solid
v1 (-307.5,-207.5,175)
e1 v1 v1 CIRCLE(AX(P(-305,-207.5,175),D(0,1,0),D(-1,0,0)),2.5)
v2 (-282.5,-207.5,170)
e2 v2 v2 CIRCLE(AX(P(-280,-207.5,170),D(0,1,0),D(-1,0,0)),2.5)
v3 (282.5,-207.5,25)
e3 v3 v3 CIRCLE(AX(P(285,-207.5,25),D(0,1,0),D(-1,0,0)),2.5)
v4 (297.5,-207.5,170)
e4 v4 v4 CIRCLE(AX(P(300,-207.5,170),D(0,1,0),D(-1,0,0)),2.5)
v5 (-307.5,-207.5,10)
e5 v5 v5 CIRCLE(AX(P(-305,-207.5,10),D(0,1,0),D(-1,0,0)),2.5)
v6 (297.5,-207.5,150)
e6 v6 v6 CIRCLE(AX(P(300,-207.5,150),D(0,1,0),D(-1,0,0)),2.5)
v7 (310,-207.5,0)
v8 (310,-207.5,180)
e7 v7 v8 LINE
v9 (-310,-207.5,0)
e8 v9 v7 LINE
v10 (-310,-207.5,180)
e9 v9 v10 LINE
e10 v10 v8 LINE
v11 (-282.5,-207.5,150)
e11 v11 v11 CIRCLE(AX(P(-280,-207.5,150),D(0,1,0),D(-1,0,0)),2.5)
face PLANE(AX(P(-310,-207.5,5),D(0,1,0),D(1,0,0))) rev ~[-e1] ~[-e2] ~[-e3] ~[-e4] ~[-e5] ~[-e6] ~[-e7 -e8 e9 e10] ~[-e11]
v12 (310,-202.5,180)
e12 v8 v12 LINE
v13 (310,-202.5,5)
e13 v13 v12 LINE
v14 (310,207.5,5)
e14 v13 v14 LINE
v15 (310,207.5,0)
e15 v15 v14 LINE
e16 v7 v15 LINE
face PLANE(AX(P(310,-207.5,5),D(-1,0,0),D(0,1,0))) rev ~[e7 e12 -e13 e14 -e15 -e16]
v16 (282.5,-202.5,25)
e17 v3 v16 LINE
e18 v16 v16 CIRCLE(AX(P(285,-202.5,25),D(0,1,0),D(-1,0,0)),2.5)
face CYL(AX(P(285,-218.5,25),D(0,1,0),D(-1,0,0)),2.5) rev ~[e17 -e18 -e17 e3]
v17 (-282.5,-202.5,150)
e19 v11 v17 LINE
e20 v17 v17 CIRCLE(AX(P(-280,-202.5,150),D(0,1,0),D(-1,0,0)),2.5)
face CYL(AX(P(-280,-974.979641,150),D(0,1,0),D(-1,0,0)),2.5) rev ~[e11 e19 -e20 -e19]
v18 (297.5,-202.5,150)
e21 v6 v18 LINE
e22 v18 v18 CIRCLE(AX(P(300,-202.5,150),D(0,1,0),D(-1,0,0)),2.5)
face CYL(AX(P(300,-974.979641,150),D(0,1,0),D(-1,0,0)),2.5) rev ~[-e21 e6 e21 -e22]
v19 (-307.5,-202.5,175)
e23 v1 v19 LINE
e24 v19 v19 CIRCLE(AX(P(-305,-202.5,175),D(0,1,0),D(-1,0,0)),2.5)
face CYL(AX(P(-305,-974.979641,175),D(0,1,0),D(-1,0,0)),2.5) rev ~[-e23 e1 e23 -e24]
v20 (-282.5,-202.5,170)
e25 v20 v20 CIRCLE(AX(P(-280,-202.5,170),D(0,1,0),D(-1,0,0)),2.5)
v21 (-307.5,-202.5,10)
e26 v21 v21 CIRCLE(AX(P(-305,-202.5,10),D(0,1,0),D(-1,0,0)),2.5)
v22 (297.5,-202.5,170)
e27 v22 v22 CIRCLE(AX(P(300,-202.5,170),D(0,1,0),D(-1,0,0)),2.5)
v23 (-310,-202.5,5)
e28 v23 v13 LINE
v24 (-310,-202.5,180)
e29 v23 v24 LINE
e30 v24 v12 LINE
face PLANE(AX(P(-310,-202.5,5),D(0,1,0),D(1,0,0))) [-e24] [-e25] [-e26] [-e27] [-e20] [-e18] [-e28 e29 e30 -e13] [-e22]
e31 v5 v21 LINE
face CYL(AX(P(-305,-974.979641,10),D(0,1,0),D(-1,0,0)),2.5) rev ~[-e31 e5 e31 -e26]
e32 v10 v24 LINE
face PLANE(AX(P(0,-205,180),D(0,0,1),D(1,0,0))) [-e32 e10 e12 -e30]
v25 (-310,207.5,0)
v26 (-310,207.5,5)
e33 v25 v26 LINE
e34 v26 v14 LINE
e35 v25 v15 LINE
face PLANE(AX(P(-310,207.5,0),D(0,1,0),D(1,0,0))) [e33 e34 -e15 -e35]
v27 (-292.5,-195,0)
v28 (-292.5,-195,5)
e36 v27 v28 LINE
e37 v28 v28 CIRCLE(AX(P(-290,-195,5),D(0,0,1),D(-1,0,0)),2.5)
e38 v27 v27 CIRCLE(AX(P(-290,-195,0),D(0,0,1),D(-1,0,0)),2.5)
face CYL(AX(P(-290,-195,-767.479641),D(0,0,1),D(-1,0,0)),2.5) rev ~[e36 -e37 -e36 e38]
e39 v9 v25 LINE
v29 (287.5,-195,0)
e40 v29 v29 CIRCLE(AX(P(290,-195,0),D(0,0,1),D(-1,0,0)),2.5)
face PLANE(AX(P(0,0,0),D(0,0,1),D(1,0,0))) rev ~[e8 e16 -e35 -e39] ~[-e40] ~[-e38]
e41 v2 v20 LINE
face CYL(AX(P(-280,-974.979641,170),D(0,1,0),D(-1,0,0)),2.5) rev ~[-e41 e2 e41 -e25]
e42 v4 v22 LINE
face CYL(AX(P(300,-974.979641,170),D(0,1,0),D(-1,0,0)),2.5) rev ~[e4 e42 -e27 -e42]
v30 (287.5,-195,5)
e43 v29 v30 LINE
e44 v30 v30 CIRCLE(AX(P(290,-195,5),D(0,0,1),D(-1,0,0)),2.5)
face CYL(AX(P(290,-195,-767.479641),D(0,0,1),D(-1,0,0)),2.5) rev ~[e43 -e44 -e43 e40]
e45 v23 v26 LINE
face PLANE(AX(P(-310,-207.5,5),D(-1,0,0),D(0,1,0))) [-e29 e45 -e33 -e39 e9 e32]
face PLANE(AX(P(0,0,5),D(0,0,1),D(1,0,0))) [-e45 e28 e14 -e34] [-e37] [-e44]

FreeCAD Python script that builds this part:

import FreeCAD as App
import Part
import Sketcher
Q = App.Units.Quantity

doc = App.newDocument("Part")
params = doc.addObject("Spreadsheet::Sheet", "Params")
for row, (alias, value) in enumerate([
    ("sketch1_width", "620 mm"),
    ("sketch1_height", "415 mm"),
    ("pad1_length", "5 mm"),
    ("sketch2_width", "620 mm"),
    ("sketch2_height", "5 mm"),
    ("pad2_length", "175 mm"),
    ("sketch3_diameter", "5 mm"),
    ("hole_diameter", "5 mm"),
    ("sketch4_diameter", "5 mm"),
    ("hole2_diameter", "5 mm"),
    ("sketch5_diameter", "5 mm"),
    ("hole3_diameter", "5 mm"),
    ("sketch6_diameter", "5 mm"),
    ("hole4_diameter", "5 mm"),
    ("sketch7_diameter", "5 mm"),
    ("hole5_diameter", "5 mm"),
    ("sketch8_diameter", "5 mm"),
    ("hole6_diameter", "5 mm"),
    ("sketch9_diameter", "5 mm"),
    ("hole7_diameter", "5 mm"),
    ("sketch10_diameter", "5 mm"),
    ("hole8_diameter", "5 mm"),
    ("sketch11_diameter", "5 mm"),
    ("hole9_diameter", "5 mm"),
    ("hole9_depth", "11 mm"),
], start=1):
    params.set(f"A{row}", alias)
    params.set(f"B{row}", "=" + value)
    params.setAlias(f"B{row}", alias)

body = doc.addObject("PartDesign::Body", "Body")

sketch1 = body.newObject("Sketcher::SketchObject", "Sketch")
sketch1.AttachmentSupport = (doc.getObject("XY_Plane"), [""])
sketch1.MapMode = "FlatFace"
sketch1.addGeometry([
    Part.LineSegment(App.Vector(-310, 208, 0), App.Vector(-310, -208, 0)),
    Part.LineSegment(App.Vector(-310, -208, 0), App.Vector(310, -208, 0)),
    Part.LineSegment(App.Vector(310, -208, 0), App.Vector(310, 208, 0)),
    Part.LineSegment(App.Vector(310, 208, 0), App.Vector(-310, 208, 0)),
], False)
sketch1.addConstraint([
    Sketcher.Constraint("Coincident", 0, 2, 1, 1),
    Sketcher.Constraint("Coincident", 1, 2, 2, 1),
    Sketcher.Constraint("Coincident", 2, 2, 3, 1),
    Sketcher.Constraint("Coincident", 3, 2, 0, 1),
    Sketcher.Constraint("Vertical", 0),
    Sketcher.Constraint("Horizontal", 1),
    Sketcher.Constraint("Vertical", 2),
    Sketcher.Constraint("Horizontal", 3),
    Sketcher.Constraint("Symmetric", 0, 2, 2, 2, -1, 1),
    Sketcher.Constraint("DistanceX", 1, 1, 1, 2, Q("620 mm")),
    Sketcher.Constraint("DistanceY", 0, 2, 0, 1, Q("415 mm")),
])
sketch1.setExpression("Constraints[9]", "Params.sketch1_width")
sketch1.setExpression("Constraints[10]", "Params.sketch1_height")
pad1 = body.newObject("PartDesign::Pad", "Pad")
pad1.Profile = sketch1
pad1.setExpression("Length", "Params.pad1_length")

sketch2 = body.newObject("Sketcher::SketchObject", "Sketch001")
sketch2.AttachmentSupport = (doc.getObject("XY_Plane"), [""])
sketch2.MapMode = "FlatFace"
sketch2.AttachmentOffset = App.Placement(App.Vector(0, 0, 5), App.Rotation())
sketch2.addGeometry([
    Part.LineSegment(App.Vector(-310, -202, 0), App.Vector(-310, -208, 0)),
    Part.LineSegment(App.Vector(-310, -208, 0), App.Vector(310, -208, 0)),
    Part.LineSegment(App.Vector(310, -208, 0), App.Vector(310, -202, 0)),
    Part.LineSegment(App.Vector(310, -202, 0), App.Vector(-310, -202, 0)),
], False)
sketch2.addConstraint([
    Sketcher.Constraint("Coincident", 0, 2, 1, 1),
    Sketcher.Constraint("Coincident", 1, 2, 2, 1),
    Sketcher.Constraint("Coincident", 2, 2, 3, 1),
    Sketcher.Constraint("Coincident", 3, 2, 0, 1),
    Sketcher.Constraint("Vertical", 0),
    Sketcher.Constraint("Horizontal", 1),
    Sketcher.Constraint("Vertical", 2),
    Sketcher.Constraint("Horizontal", 3),
    Sketcher.Constraint("DistanceX", 1, 1, 1, 2, Q("620 mm")),
    Sketcher.Constraint("DistanceY", 0, 2, 0, 1, Q("5 mm")),
    Sketcher.Constraint("DistanceX", 0, 2, -1, 1, Q("310 mm")),
    Sketcher.Constraint("DistanceY", 0, 2, -1, 1, Q("207.5 mm")),
])
sketch2.setExpression("Constraints[8]", "Params.sketch2_width")
sketch2.setExpression("Constraints[9]", "Params.sketch2_height")
pad2 = body.newObject("PartDesign::Pad", "Pad001")
pad2.Profile = sketch2
pad2.setExpression("Length", "Params.pad2_length")

sketch3 = body.newObject("Sketcher::SketchObject", "Sketch002")
sketch3.AttachmentSupport = (doc.getObject("XZ_Plane"), [""])
sketch3.MapMode = "FlatFace"
sketch3.AttachmentOffset = App.Placement(App.Vector(0, 0, 207.5), App.Rotation())
sketch3.addGeometry(Part.Circle(App.Vector(300, 170, 0), App.Vector(0, 0, 1), 2.5), False)
sketch3.addConstraint([
    Sketcher.Constraint("Diameter", 0, Q("5 mm")),
    Sketcher.Constraint("DistanceX", -1, 1, 0, 3, Q("300 mm")),
    Sketcher.Constraint("DistanceY", -1, 1, 0, 3, Q("170 mm")),
])
sketch3.setExpression("Constraints[0]", "Params.sketch3_diameter")
doc.recompute()
hole = body.newObject("PartDesign::Hole", "Hole")
hole.Profile = sketch3
hole.ThreadType = "None"
hole.setExpression("Diameter", "Params.hole_diameter")
hole.DepthType = "ThroughAll"

sketch4 = body.newObject("Sketcher::SketchObject", "Sketch003")
sketch4.AttachmentSupport = (doc.getObject("XZ_Plane"), [""])
sketch4.MapMode = "FlatFace"
sketch4.AttachmentOffset = App.Placement(App.Vector(0, 0, 207.5), App.Rotation())
sketch4.addGeometry(Part.Circle(App.Vector(300, 150, 0), App.Vector(0, 0, 1), 2.5), False)
sketch4.addConstraint([
    Sketcher.Constraint("Diameter", 0, Q("5 mm")),
    Sketcher.Constraint("DistanceX", -1, 1, 0, 3, Q("300 mm")),
    Sketcher.Constraint("DistanceY", -1, 1, 0, 3, Q("150 mm")),
])
sketch4.setExpression("Constraints[0]", "Params.sketch4_diameter")
doc.recompute()
hole2 = body.newObject("PartDesign::Hole", "Hole001")
hole2.Profile = sketch4
hole2.ThreadType = "None"
hole2.setExpression("Diameter", "Params.hole2_diameter")
hole2.DepthType = "ThroughAll"

sketch5 = body.newObject("Sketcher::SketchObject", "Sketch004")
sketch5.AttachmentSupport = (doc.getObject("XZ_Plane"), [""])
sketch5.MapMode = "FlatFace"
sketch5.AttachmentOffset = App.Placement(App.Vector(0, 0, 207.5), App.Rotation())
sketch5.addGeometry(Part.Circle(App.Vector(-280, 170, 0), App.Vector(0, 0, 1), 2.5), False)
sketch5.addConstraint([
    Sketcher.Constraint("Diameter", 0, Q("5 mm")),
    Sketcher.Constraint("DistanceX", 0, 3, -1, 1, Q("280 mm")),
    Sketcher.Constraint("DistanceY", -1, 1, 0, 3, Q("170 mm")),
])
sketch5.setExpression("Constraints[0]", "Params.sketch5_diameter")
doc.recompute()
hole3 = body.newObject("PartDesign::Hole", "Hole002")
hole3.Profile = sketch5
hole3.ThreadType = "None"
hole3.setExpression("Diameter", "Params.hole3_diameter")
hole3.DepthType = "ThroughAll"

sketch6 = body.newObject("Sketcher::SketchObject", "Sketch005")
sketch6.AttachmentSupport = (doc.getObject("XZ_Plane"), [""])
sketch6.MapMode = "FlatFace"
sketch6.AttachmentOffset = App.Placement(App.Vector(0, 0, 207.5), App.Rotation())
sketch6.addGeometry(Part.Circle(App.Vector(-280, 150, 0), App.Vector(0, 0, 1), 2.5), False)
sketch6.addConstraint([
    Sketcher.Constraint("Diameter", 0, Q("5 mm")),
    Sketcher.Constraint("DistanceX", 0, 3, -1, 1, Q("280 mm")),
    Sketcher.Constraint("DistanceY", -1, 1, 0, 3, Q("150 mm")),
])
sketch6.setExpression("Constraints[0]", "Params.sketch6_diameter")
doc.recompute()
hole4 = body.newObject("PartDesign::Hole", "Hole003")
hole4.Profile = sketch6
hole4.ThreadType = "None"
hole4.setExpression("Diameter", "Params.hole4_diameter")
hole4.DepthType = "ThroughAll"

sketch7 = body.newObject("Sketcher::SketchObject", "Sketch006")
sketch7.AttachmentSupport = (doc.getObject("XZ_Plane"), [""])
sketch7.MapMode = "FlatFace"
sketch7.AttachmentOffset = App.Placement(App.Vector(0, 0, 207.5), App.Rotation())
sketch7.addGeometry(Part.Circle(App.Vector(-305, 175, 0), App.Vector(0, 0, 1), 2.5), False)
sketch7.addConstraint([
    Sketcher.Constraint("Diameter", 0, Q("5 mm")),
    Sketcher.Constraint("DistanceX", 0, 3, -1, 1, Q("305 mm")),
    Sketcher.Constraint("DistanceY", -1, 1, 0, 3, Q("175 mm")),
])
sketch7.setExpression("Constraints[0]", "Params.sketch7_diameter")
doc.recompute()
hole5 = body.newObject("PartDesign::Hole", "Hole004")
hole5.Profile = sketch7
hole5.ThreadType = "None"
hole5.setExpression("Diameter", "Params.hole5_diameter")
hole5.DepthType = "ThroughAll"

sketch8 = body.newObject("Sketcher::SketchObject", "Sketch007")
sketch8.AttachmentSupport = (doc.getObject("XZ_Plane"), [""])
sketch8.MapMode = "FlatFace"
sketch8.AttachmentOffset = App.Placement(App.Vector(0, 0, 207.5), App.Rotation())
sketch8.addGeometry(Part.Circle(App.Vector(-305, 10, 0), App.Vector(0, 0, 1), 2.5), False)
sketch8.addConstraint([
    Sketcher.Constraint("Diameter", 0, Q("5 mm")),
    Sketcher.Constraint("DistanceX", 0, 3, -1, 1, Q("305 mm")),
    Sketcher.Constraint("DistanceY", -1, 1, 0, 3, Q("10 mm")),
])
sketch8.setExpression("Constraints[0]", "Params.sketch8_diameter")
doc.recompute()
hole6 = body.newObject("PartDesign::Hole", "Hole005")
hole6.Profile = sketch8
hole6.ThreadType = "None"
hole6.setExpression("Diameter", "Params.hole6_diameter")
hole6.DepthType = "ThroughAll"

sketch9 = body.newObject("Sketcher::SketchObject", "Sketch008")
sketch9.AttachmentSupport = (doc.getObject("XY_Plane"), [""])
sketch9.MapMode = "FlatFace"
sketch9.addGeometry(Part.Circle(App.Vector(290, -195, 0), App.Vector(0, 0, 1), 2.5), False)
sketch9.addConstraint([
    Sketcher.Constraint("Diameter", 0, Q("5 mm")),
    Sketcher.Constraint("DistanceX", -1, 1, 0, 3, Q("290 mm")),
    Sketcher.Constraint("DistanceY", 0, 3, -1, 1, Q("195 mm")),
])
sketch9.setExpression("Constraints[0]", "Params.sketch9_diameter")
doc.recompute()
hole7 = body.newObject("PartDesign::Hole", "Hole006")
hole7.Profile = sketch9
hole7.ThreadType = "None"
hole7.setExpression("Diameter", "Params.hole7_diameter")
hole7.DepthType = "ThroughAll"
hole7.Reversed = True

sketch10 = body.newObject("Sketcher::SketchObject", "Sketch009")
sketch10.AttachmentSupport = (doc.getObject("XY_Plane"), [""])
sketch10.MapMode = "FlatFace"
sketch10.addGeometry(Part.Circle(App.Vector(-290, -195, 0), App.Vector(0, 0, 1), 2.5), False)
sketch10.addConstraint([
    Sketcher.Constraint("Diameter", 0, Q("5 mm")),
    Sketcher.Constraint("DistanceX", 0, 3, -1, 1, Q("290 mm")),
    Sketcher.Constraint("DistanceY", 0, 3, -1, 1, Q("195 mm")),
])
sketch10.setExpression("Constraints[0]", "Params.sketch10_diameter")
doc.recompute()
hole8 = body.newObject("PartDesign::Hole", "Hole007")
hole8.Profile = sketch10
hole8.ThreadType = "None"
hole8.setExpression("Diameter", "Params.hole8_diameter")
hole8.DepthType = "ThroughAll"
hole8.Reversed = True

sketch11 = body.newObject("Sketcher::SketchObject", "Sketch010")
sketch11.AttachmentSupport = (doc.getObject("XZ_Plane"), [""])
sketch11.MapMode = "FlatFace"
sketch11.AttachmentOffset = App.Placement(App.Vector(0, 0, 207.5), App.Rotation())
sketch11.addGeometry(Part.Circle(App.Vector(285, 25, 0), App.Vector(0, 0, 1), 2.5), False)
sketch11.addConstraint([
    Sketcher.Constraint("Diameter", 0, Q("5 mm")),
    Sketcher.Constraint("DistanceX", -1, 1, 0, 3, Q("285 mm")),
    Sketcher.Constraint("DistanceY", -1, 1, 0, 3, Q("25 mm")),
])
sketch11.setExpression("Constraints[0]", "Params.sketch11_diameter")
doc.recompute()
hole9 = body.newObject("PartDesign::Hole", "Hole008")
hole9.Profile = sketch11
hole9.ThreadType = "None"
hole9.setExpression("Diameter", "Params.hole9_diameter")
hole9.DepthType = "Dimension"
hole9.setExpression("Depth", "Params.hole9_depth")
hole9.DrillPoint = "Flat"

doc.recompute()
